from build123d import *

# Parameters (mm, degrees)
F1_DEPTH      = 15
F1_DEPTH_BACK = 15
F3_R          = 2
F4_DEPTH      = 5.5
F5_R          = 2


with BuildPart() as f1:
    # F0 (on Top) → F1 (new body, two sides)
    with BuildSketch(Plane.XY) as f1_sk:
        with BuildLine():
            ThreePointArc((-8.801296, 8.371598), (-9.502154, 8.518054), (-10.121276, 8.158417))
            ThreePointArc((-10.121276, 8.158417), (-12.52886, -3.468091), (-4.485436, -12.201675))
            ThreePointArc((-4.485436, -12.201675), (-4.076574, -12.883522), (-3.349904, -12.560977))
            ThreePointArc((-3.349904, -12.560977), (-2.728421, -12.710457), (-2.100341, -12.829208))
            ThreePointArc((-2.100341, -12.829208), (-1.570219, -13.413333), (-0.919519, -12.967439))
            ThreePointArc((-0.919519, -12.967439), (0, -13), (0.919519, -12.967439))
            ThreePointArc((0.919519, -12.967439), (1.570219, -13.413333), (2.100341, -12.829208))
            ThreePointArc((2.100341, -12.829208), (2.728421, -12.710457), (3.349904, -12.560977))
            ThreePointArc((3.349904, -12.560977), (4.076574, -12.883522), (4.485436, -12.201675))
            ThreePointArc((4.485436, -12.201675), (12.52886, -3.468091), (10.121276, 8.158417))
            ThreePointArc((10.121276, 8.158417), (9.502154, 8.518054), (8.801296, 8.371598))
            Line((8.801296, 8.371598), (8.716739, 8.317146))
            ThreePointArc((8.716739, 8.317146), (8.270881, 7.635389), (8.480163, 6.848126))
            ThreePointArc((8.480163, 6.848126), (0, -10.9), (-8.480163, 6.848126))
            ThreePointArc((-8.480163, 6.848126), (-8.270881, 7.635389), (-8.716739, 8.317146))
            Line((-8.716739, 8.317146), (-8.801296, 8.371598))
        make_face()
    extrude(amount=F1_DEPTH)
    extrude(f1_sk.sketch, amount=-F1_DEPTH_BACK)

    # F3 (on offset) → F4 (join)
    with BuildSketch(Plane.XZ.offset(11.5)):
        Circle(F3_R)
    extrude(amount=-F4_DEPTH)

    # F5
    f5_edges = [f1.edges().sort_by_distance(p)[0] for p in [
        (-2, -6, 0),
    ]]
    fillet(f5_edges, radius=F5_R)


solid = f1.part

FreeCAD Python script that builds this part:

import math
import FreeCAD as App
import Part
import Sketcher
Q = App.Units.Quantity


def edges_at(feature, points):
    """Names of the edges that pass closest to the given points."""
    edges = feature.Shape.Edges
    near = lambda p: min(range(len(edges)), key=lambda i: edges[i].distToShape(Part.Vertex(*p))[0])
    return sorted({f"Edge{near(p) + 1}" for p in points})

doc = App.newDocument("Part")
body = doc.addObject("PartDesign::Body", "Body")

sketch1 = body.newObject("Sketcher::SketchObject", "Sketch")
sketch1.AttachmentSupport = (doc.getObject("XY_Plane"), [""])
sketch1.MapMode = "FlatFace"
sketch1.addGeometry([
    Part.ArcOfCircle(Part.Circle(App.Vector(-9.342716, 7.530846, 0), App.Vector(0, 0, 1), 1), math.radians(57.219624), math.radians(141.128845)),
    Part.ArcOfCircle(Part.Circle(App.Vector(0.000001, 0, 0), App.Vector(0, 0, 1), 13.000001), math.radians(141.128895), math.radians(249.816152)),
    Part.ArcOfCircle(Part.Circle(App.Vector(-3.895568, -12.311476, 0), App.Vector(0, 0, 1), 0.6), math.radians(169.455402), math.radians(335.42805)),
    Part.ArcOfCircle(Part.Circle(App.Vector(0.000049, 0.000211, 0), App.Vector(0, 0, 1), 13.000217), math.radians(-104.932709), math.radians(-99.297793)),
    Part.ArcOfCircle(Part.Circle(App.Vector(-1.500457, -12.817402, 0), App.Vector(0, 0, 1), 0.6), math.radians(-178.87257), math.radians(-14.481126)),
    Part.ArcOfCircle(Part.Circle(App.Vector(0, -0.000163, 0), App.Vector(0, 0, 1), 12.999837), math.radians(-94.056096), math.radians(-85.943904)),
    Part.ArcOfCircle(Part.Circle(App.Vector(1.500457, -12.817402, 0), App.Vector(0, 0, 1), 0.6), math.radians(-165.518874), math.radians(-1.12743)),
    Part.ArcOfCircle(Part.Circle(App.Vector(-0.000049, 0.000211, 0), App.Vector(0, 0, 1), 13.000217), math.radians(-80.702207), math.radians(-75.067291)),
    Part.ArcOfCircle(Part.Circle(App.Vector(3.895568, -12.311476, 0), App.Vector(0, 0, 1), 0.6), math.radians(-155.42805), math.radians(10.544598)),
    Part.ArcOfCircle(Part.Circle(App.Vector(-0.000001, 0, 0), App.Vector(0, 0, 1), 13.000001), math.radians(-69.816152), math.radians(38.871105)),
    Part.ArcOfCircle(Part.Circle(App.Vector(9.342716, 7.530846, 0), App.Vector(0, 0, 1), 1), math.radians(38.871155), math.radians(122.780376)),
    Part.LineSegment(App.Vector(8.801296, 8.371598, 0), App.Vector(8.716739, 8.317146, 0)),
    Part.ArcOfCircle(Part.Circle(App.Vector(9.258162, 7.476394, 0), App.Vector(0, 0, 1), 1.000001), math.radians(122.780491), math.radians(218.922392)),
    Part.ArcOfCircle(Part.Circle(App.Vector(0, 0, 0), App.Vector(0, 0, 1), 10.9), math.radians(141.077512), math.radians(398.922488)),
    Part.ArcOfCircle(Part.Circle(App.Vector(-9.258162, 7.476394, 0), App.Vector(0, 0, 1), 1.000001), math.radians(-38.922392), math.radians(57.219509)),
    Part.LineSegment(App.Vector(-8.716739, 8.317146, 0), App.Vector(-8.801296, 8.371598, 0)),
], False)
sketch1.addConstraint([
    Sketcher.Constraint("Coincident", 0, 2, 1, 1),
    Sketcher.Constraint("Coincident", 1, 2, 2, 1),
    Sketcher.Constraint("Coincident", 2, 2, 3, 1),
    Sketcher.Constraint("Coincident", 3, 2, 4, 1),
    Sketcher.Constraint("Coincident", 4, 2, 5, 1),
    Sketcher.Constraint("Coincident", 5, 2, 6, 1),
    Sketcher.Constraint("Coincident", 6, 2, 7, 1),
    Sketcher.Constraint("Coincident", 7, 2, 8, 1),
    Sketcher.Constraint("Coincident", 8, 2, 9, 1),
    Sketcher.Constraint("Coincident", 9, 2, 10, 1),
    Sketcher.Constraint("Coincident", 10, 2, 11, 1),
    Sketcher.Constraint("Coincident", 11, 2, 12, 1),
    Sketcher.Constraint("Coincident", 12, 2, 13, 2),
    Sketcher.Constraint("Coincident", 13, 1, 14, 1),
    Sketcher.Constraint("Coincident", 14, 2, 15, 1),
    Sketcher.Constraint("Coincident", 15, 2, 0, 1),
    Sketcher.Constraint("Coincident", 1, 3, -1, 1),
    Sketcher.Constraint("Coincident", 9, 3, -1, 1),
    Sketcher.Constraint("Coincident", 13, 3, -1, 1),
    Sketcher.Constraint("PointOnObject", 5, 3, -2),
    Sketcher.Constraint("Radius", 0, Q("1 mm")),
    Sketcher.Constraint("Radius", 1, Q("13.000001 mm")),
    Sketcher.Constraint("Radius", 9, Q("13.000001 mm")),
    Sketcher.Constraint("Radius", 10, Q("1 mm")),
    Sketcher.Constraint("Radius", 12, Q("1.000001 mm")),
    Sketcher.Constraint("Radius", 14, Q("1.000001 mm")),
    Sketcher.Constraint("Radius", 2, Q("0.6 mm")),
    Sketcher.Constraint("Radius", 4, Q("0.6 mm")),
    Sketcher.Constraint("Radius", 6, Q("0.6 mm")),
    Sketcher.Constraint("Radius", 8, Q("0.6 mm")),
    Sketcher.Constraint("Radius", 13, Q("10.9 mm")),
    Sketcher.Constraint("Radius", 3, Q("13.000217 mm")),
    Sketcher.Constraint("Radius", 5, Q("12.999837 mm")),
    Sketcher.Constraint("Radius", 7, Q("13.000217 mm")),
    Sketcher.Constraint("DistanceX", 12, 2, 12, 3, Q("0.777999 mm")),
    Sketcher.Constraint("DistanceX", 14, 3, 13, 1, Q("0.777999 mm")),
    Sketcher.Constraint("DistanceY", 2, 3, 1, 2, Q("0.109801 mm")),
    Sketcher.Constraint("DistanceY", 8, 3, 1, 2, Q("0.109801 mm")),
    Sketcher.Constraint("DistanceY", 2, 2, 2, 3, Q("0.249501 mm")),
    Sketcher.Constraint("DistanceX", 3, 2, 6, 3, Q("3.600798 mm")),
    Sketcher.Constraint("DistanceX", 4, 3, 6, 2, Q("3.600798 mm")),
    Sketcher.Constraint("DistanceY", 7, 2, 8, 3, Q("0.249501 mm")),
    Sketcher.Constraint("DistanceY", 8, 3, 8, 2, Q("0.109801 mm")),
    Sketcher.Constraint("DistanceY", 10, 3, 11, 2, Q("0.7863 mm")),
    Sketcher.Constraint("DistanceY", 0, 3, 14, 2, Q("0.7863 mm")),
    Sketcher.Constraint("DistanceX", 2, 3, -1, 1, Q("3.895568 mm")),
    Sketcher.Constraint("DistanceY", -1, 1, 3, 3, Q("0.000211 mm")),
    Sketcher.Constraint("DistanceY", -1, 1, 7, 3, Q("0.000211 mm")),
    Sketcher.Constraint("DistanceX", -1, 1, 12, 3, Q("9.258162 mm")),
    Sketcher.Constraint("DistanceX", 14, 3, -1, 1, Q("9.258162 mm")),
    Sketcher.Constraint("DistanceX", 3, 2, -1, 1, Q("2.100341 mm")),
    Sketcher.Constraint("DistanceX", 4, 2, -1, 1, Q("0.919519 mm")),
    Sketcher.Constraint("DistanceY", 4, 2, -1, 1, Q("12.967439 mm")),
    Sketcher.Constraint("DistanceX", -1, 1, 11, 2, Q("8.716739 mm")),
    Sketcher.Constraint("DistanceX", 14, 2, -1, 1, Q("8.716739 mm")),
    Sketcher.Constraint("DistanceX", 0, 2, 0, 3, Q("0.77856 mm")),
    Sketcher.Constraint("DistanceX", 10, 3, 9, 2, Q("0.77856 mm")),
    Sketcher.Constraint("DistanceX", 10, 2, 10, 3, Q("0.54142 mm")),
    Sketcher.Constraint("DistanceY", 14, 2, 15, 2, Q("0.054452 mm")),
])
pad1 = body.newObject("PartDesign::Pad", "Pad")
pad1.Profile = sketch1
pad1.Type = "TwoLengths"
pad1.Length = 15
pad1.Length2 = 15

sketch2 = body.newObject("Sketcher::SketchObject", "Sketch001")
sketch2.AttachmentSupport = (doc.getObject("XZ_Plane"), [""])
sketch2.MapMode = "FlatFace"
sketch2.AttachmentOffset = App.Placement(App.Vector(0, 0, 11.5), App.Rotation())
sketch2.addGeometry(Part.Circle(App.Vector(0, 0, 0), App.Vector(0, 0, 1), 2), False)
sketch2.addConstraint([
    Sketcher.Constraint("Coincident", 0, 3, -1, 1),
    Sketcher.Constraint("Diameter", 0, Q("4 mm")),
])
pad2 = body.newObject("PartDesign::Pad", "Pad001")
pad2.Profile = sketch2
pad2.Length = 5.5
pad2.Reversed = True
doc.recompute()

fillet = body.newObject("PartDesign::Fillet", "Fillet")
fillet.Base = (pad2, edges_at(pad2, [(-2, -6, 0)]))
fillet.Radius = 2

doc.recompute()
